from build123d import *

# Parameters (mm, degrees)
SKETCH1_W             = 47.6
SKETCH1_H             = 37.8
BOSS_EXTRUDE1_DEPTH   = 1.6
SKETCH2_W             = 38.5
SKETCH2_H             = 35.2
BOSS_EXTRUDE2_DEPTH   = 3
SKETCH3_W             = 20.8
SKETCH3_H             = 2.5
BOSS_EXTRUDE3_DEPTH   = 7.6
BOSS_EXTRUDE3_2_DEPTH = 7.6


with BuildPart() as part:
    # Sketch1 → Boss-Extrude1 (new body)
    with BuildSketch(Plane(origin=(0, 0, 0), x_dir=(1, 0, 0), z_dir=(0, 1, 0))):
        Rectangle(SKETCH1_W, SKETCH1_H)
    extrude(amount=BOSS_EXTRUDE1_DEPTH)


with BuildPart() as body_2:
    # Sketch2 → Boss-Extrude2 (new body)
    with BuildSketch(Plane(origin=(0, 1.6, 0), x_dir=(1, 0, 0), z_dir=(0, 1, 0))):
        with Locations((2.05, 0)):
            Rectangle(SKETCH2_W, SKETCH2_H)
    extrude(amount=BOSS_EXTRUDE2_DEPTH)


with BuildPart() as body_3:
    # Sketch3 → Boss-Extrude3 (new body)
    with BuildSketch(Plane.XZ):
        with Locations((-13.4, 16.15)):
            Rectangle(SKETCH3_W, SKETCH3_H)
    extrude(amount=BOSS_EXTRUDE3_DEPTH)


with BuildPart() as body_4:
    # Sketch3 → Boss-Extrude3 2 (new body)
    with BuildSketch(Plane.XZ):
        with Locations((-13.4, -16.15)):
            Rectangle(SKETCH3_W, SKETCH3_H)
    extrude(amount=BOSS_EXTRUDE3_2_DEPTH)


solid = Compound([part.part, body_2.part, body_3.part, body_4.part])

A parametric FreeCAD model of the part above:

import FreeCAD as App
import Part
import Sketcher

V = App.Vector
Q = App.Units.Quantity


def add_polygon(sketch, points):
    """Adds a closed chain of lines whose ends are joined by coincident constraints."""
    first, n = sketch.GeometryCount, len(points)
    for a, b in zip(points, points[1:] + points[:1]):
        sketch.addGeometry(Part.LineSegment(App.Vector(*a, 0), App.Vector(*b, 0)), False)
    for i in range(n):
        sketch.addConstraint(Sketcher.Constraint("Coincident", first + i, 2, first + (i + 1) % n, 1))

doc = App.newDocument("Part")
body = doc.addObject("PartDesign::Body", "Body")

sketch1 = body.newObject("Sketcher::SketchObject", "Sketch")
sketch1.AttachmentSupport = (doc.getObject("XZ_Plane"), [""])
sketch1.MapMode = "FlatFace"
add_polygon(sketch1, [(-24, -19), (-24, 19), (24, 19), (24, -19)])
sketch1.addConstraint(Sketcher.Constraint("Vertical", 0))
sketch1.addConstraint(Sketcher.Constraint("Horizontal", 1))
sketch1.addConstraint(Sketcher.Constraint("Vertical", 2))
sketch1.addConstraint(Sketcher.Constraint("Horizontal", 3))
sketch1.addConstraint(Sketcher.Constraint("Symmetric", 0, 2, 2, 2, -1, 1))
sketch1.addConstraint(Sketcher.Constraint("DistanceX", 1, 1, 1, 2, Q("47.6 mm")))
sketch1.addConstraint(Sketcher.Constraint("DistanceY", 0, 1, 0, 2, Q("37.8 mm")))
pad1 = body.newObject("PartDesign::Pad", "Pad")
pad1.Profile = sketch1
pad1.Length = 1.6
pad1.Reversed = True
body2 = doc.addObject("PartDesign::Body", "Body001")

sketch2 = body2.newObject("Sketcher::SketchObject", "Sketch001")
sketch2.AttachmentSupport = (doc.getObject("XZ_Plane001"), [""])
sketch2.MapMode = "FlatFace"
sketch2.AttachmentOffset = App.Placement(V(0, 0, -1.6), App.Rotation())
add_polygon(sketch2, [(-17, -18), (-17, 18), (21, 18), (21, -18)])
sketch2.addConstraint(Sketcher.Constraint("Vertical", 0))
sketch2.addConstraint(Sketcher.Constraint("Horizontal", 1))
sketch2.addConstraint(Sketcher.Constraint("Vertical", 2))
sketch2.addConstraint(Sketcher.Constraint("Horizontal", 3))
sketch2.addConstraint(Sketcher.Constraint("DistanceX", 1, 1, 1, 2, Q("38.5 mm")))
sketch2.addConstraint(Sketcher.Constraint("DistanceY", 0, 1, 0, 2, Q("35.2 mm")))
sketch2.addConstraint(Sketcher.Constraint("DistanceX", 0, 2, -1, 1, Q("17.2 mm")))
sketch2.addConstraint(Sketcher.Constraint("DistanceY", -1, 1, 0, 2, Q("17.6 mm")))
pad2 = body2.newObject("PartDesign::Pad", "Pad001")
pad2.Profile = sketch2
pad2.Length = 3
pad2.Reversed = True
body3 = doc.addObject("PartDesign::Body", "Body002")

sketch3 = body3.newObject("Sketcher::SketchObject", "Sketch002")
sketch3.AttachmentSupport = (doc.getObject("XZ_Plane002"), [""])
sketch3.MapMode = "FlatFace"
add_polygon(sketch3, [(-23.8, 17.4), (-23.8, 14.9), (-3, 14.9), (-3, 17.4)])
sketch3.addConstraint(Sketcher.Constraint("Vertical", 0))
sketch3.addConstraint(Sketcher.Constraint("Horizontal", 1))
sketch3.addConstraint(Sketcher.Constraint("Vertical", 2))
sketch3.addConstraint(Sketcher.Constraint("Horizontal", 3))
sketch3.addConstraint(Sketcher.Constraint("DistanceX", 1, 1, 1, 2, Q("20.8 mm")))
sketch3.addConstraint(Sketcher.Constraint("DistanceY", 0, 2, 0, 1, Q("2.5 mm")))
sketch3.addConstraint(Sketcher.Constraint("DistanceX", 1, 2, -1, 1, Q("3 mm")))
sketch3.addConstraint(Sketcher.Constraint("DistanceY", -1, 1, 0, 2, Q("14.9 mm")))
pad3 = body3.newObject("PartDesign::Pad", "Pad002")
pad3.Profile = sketch3
pad3.Length = 7.6
body4 = doc.addObject("PartDesign::Body", "Body003")

sketch4 = body4.newObject("Sketcher::SketchObject", "Sketch003")
sketch4.AttachmentSupport = (doc.getObject("XZ_Plane003"), [""])
sketch4.MapMode = "FlatFace"
add_polygon(sketch4, [(-23.8, -14.9), (-23.8, -17.4), (-3, -17.4), (-3, -14.9)])
sketch4.addConstraint(Sketcher.Constraint("Vertical", 0))
sketch4.addConstraint(Sketcher.Constraint("Horizontal", 1))
sketch4.addConstraint(Sketcher.Constraint("Vertical", 2))
sketch4.addConstraint(Sketcher.Constraint("Horizontal", 3))
sketch4.addConstraint(Sketcher.Constraint("DistanceX", 1, 1, 1, 2, Q("20.8 mm")))
sketch4.addConstraint(Sketcher.Constraint("DistanceY", 0, 2, 0, 1, Q("2.5 mm")))
sketch4.addConstraint(Sketcher.Constraint("DistanceX", 1, 2, -1, 1, Q("3 mm")))
sketch4.addConstraint(Sketcher.Constraint("DistanceY", 0, 2, -1, 1, Q("17.4 mm")))
pad4 = body4.newObject("PartDesign::Pad", "Pad003")
pad4.Profile = sketch4
pad4.Length = 7.6

doc.recompute()
